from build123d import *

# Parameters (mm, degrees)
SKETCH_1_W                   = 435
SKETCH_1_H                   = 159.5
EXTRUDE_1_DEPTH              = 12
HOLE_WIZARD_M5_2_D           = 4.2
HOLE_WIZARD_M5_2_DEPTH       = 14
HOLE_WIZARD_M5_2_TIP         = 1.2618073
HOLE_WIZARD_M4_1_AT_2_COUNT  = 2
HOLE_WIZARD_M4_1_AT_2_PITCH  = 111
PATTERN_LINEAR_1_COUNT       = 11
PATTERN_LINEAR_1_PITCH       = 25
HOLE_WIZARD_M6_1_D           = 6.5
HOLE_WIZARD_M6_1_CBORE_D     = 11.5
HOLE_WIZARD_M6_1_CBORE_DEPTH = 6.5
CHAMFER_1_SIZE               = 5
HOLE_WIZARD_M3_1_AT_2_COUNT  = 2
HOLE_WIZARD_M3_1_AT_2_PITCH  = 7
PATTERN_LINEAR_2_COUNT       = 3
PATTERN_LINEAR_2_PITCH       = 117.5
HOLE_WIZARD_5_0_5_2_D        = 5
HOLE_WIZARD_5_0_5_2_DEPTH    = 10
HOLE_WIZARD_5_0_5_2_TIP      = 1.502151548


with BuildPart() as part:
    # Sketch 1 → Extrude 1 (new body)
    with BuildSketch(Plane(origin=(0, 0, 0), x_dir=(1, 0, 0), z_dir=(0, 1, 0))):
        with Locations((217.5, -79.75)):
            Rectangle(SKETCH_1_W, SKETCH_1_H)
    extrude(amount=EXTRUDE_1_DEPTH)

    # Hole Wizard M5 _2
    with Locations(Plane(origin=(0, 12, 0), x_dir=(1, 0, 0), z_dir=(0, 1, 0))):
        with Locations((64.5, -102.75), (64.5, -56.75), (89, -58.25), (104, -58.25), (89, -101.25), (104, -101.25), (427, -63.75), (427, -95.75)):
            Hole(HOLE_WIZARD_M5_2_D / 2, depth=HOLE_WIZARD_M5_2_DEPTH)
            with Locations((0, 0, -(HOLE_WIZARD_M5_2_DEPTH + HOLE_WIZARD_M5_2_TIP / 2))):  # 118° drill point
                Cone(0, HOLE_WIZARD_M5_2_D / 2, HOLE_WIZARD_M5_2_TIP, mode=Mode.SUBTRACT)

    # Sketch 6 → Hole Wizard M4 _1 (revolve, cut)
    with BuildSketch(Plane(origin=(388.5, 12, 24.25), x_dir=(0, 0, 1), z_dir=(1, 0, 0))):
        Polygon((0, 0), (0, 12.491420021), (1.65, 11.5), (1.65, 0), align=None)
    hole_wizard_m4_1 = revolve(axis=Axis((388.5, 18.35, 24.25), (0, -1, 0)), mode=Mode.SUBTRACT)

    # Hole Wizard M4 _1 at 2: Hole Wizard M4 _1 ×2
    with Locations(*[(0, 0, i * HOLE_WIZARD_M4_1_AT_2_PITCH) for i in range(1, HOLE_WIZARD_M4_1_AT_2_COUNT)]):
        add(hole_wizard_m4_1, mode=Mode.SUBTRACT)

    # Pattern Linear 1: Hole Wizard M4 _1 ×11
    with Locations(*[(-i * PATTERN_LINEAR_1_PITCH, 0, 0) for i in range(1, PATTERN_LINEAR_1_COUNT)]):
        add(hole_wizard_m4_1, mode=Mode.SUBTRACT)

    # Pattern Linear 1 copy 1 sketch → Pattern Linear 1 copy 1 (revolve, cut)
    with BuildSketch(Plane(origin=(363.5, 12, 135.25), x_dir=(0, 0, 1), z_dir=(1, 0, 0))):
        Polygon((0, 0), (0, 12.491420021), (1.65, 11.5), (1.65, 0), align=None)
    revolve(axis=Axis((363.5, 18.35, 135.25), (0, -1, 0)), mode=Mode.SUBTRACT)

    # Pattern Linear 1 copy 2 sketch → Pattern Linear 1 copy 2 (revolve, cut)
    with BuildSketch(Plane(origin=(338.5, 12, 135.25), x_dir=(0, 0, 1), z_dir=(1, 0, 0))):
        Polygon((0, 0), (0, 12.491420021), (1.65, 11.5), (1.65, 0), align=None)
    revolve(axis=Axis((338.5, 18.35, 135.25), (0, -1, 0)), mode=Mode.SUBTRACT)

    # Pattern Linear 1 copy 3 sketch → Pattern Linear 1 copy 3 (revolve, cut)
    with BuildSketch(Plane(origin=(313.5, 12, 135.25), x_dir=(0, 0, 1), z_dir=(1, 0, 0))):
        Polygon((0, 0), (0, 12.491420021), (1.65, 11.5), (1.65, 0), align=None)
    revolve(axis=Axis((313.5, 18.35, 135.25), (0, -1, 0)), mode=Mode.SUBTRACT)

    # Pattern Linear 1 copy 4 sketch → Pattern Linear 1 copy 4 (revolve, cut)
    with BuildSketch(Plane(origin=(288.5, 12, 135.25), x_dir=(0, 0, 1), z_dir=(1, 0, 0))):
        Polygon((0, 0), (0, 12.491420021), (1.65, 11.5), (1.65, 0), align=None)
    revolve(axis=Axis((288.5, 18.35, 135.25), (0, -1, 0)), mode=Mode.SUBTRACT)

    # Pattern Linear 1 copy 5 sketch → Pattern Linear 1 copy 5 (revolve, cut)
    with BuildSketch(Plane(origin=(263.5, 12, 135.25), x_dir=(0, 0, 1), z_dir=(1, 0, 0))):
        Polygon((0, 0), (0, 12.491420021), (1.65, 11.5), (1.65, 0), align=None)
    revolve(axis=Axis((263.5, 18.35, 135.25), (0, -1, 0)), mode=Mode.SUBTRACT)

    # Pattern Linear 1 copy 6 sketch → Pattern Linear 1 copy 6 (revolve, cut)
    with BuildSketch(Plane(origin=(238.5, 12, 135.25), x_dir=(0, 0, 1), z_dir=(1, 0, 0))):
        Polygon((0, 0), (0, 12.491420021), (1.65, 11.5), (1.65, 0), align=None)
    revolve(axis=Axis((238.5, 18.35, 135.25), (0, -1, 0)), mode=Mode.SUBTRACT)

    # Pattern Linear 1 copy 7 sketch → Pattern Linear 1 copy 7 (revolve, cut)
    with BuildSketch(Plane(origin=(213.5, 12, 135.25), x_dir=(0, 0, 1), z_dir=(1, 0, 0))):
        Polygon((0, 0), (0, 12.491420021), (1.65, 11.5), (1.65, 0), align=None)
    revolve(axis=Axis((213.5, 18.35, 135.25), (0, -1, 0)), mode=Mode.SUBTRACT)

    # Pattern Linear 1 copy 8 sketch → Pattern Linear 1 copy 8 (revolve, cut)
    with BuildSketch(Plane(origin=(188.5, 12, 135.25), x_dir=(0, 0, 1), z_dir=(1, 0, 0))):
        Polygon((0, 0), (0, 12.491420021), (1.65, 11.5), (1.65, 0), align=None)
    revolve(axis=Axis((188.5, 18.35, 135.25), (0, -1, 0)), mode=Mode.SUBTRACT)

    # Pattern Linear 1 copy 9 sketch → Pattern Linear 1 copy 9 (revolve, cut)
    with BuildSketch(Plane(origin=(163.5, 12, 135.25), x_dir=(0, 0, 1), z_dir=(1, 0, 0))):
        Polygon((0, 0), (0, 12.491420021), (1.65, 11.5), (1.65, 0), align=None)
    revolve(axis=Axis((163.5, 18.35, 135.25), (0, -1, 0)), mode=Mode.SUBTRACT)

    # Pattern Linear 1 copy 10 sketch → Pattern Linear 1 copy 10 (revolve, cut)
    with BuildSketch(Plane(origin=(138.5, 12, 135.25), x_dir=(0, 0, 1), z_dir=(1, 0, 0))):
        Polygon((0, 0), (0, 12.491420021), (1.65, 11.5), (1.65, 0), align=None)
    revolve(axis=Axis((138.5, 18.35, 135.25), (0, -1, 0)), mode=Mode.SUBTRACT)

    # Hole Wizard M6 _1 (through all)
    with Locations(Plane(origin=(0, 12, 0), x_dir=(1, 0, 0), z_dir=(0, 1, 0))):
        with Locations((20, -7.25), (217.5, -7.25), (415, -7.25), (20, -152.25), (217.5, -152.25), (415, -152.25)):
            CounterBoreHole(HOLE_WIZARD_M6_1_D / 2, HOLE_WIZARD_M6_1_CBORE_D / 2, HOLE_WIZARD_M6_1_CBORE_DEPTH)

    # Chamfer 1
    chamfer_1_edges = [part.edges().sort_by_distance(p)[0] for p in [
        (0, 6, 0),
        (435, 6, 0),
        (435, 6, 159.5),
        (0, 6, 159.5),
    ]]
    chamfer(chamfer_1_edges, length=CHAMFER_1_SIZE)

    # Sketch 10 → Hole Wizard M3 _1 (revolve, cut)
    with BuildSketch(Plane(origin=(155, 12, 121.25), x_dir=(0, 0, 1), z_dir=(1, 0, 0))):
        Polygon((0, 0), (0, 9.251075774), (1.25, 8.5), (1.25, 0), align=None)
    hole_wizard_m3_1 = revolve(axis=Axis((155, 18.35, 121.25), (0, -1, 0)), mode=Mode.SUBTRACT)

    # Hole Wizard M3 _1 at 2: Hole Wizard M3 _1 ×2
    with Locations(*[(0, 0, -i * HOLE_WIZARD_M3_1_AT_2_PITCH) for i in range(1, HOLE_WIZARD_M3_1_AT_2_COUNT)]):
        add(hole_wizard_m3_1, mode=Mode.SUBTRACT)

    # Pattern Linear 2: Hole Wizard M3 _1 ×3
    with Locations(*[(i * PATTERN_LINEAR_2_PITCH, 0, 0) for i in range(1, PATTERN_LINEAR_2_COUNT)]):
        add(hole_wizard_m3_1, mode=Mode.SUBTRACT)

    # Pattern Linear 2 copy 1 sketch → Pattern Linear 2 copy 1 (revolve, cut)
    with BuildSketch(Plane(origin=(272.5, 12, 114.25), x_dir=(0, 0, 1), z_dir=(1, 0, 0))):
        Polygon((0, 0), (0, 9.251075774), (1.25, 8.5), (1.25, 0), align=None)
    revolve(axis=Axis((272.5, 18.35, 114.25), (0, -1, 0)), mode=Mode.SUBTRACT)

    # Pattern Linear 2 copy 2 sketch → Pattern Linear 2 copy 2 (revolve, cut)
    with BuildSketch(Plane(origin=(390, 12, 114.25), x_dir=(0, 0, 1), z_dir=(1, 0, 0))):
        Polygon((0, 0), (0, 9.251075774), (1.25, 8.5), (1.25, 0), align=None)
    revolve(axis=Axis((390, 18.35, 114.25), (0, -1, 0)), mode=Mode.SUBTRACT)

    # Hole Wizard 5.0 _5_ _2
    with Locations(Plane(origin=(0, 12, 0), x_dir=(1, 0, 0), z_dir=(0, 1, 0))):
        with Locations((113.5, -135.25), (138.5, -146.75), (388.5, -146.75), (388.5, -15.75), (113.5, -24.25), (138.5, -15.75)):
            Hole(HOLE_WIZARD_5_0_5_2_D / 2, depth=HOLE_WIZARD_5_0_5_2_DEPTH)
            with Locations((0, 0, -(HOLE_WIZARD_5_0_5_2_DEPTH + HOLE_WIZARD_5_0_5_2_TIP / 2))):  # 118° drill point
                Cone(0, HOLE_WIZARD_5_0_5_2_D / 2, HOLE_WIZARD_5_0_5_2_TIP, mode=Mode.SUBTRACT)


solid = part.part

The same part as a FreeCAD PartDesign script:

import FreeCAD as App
import Part
import Sketcher
Q = App.Units.Quantity


def edges_at(feature, points):
    """Names of the edges that pass closest to the given points."""
    edges = feature.Shape.Edges
    near = lambda p: min(range(len(edges)), key=lambda i: edges[i].distToShape(Part.Vertex(*p))[0])
    return sorted({f"Edge{near(p) + 1}" for p in points})

doc = App.newDocument("Part")
params = doc.addObject("Spreadsheet::Sheet", "Params")
for row, (alias, value) in enumerate([
    ("sketch1_width", "435 mm"),
    ("sketch1_height", "159.5 mm"),
    ("pad1_length", "12 mm"),
    ("sketch2_diameter", "4.2 mm"),
    ("hole_diameter", "4.2 mm"),
    ("hole_depth", "14 mm"),
    ("sketch3_width", "11.5 mm"),
    ("sketch3_height", "1.65 mm"),
    ("groove_angle", "360 deg"),
    ("linearpattern_pitch", "111 mm"),
    ("linearpattern2_pitch", "25 mm"),
    ("sketch4_width", "11.5 mm"),
    ("sketch4_height", "1.65 mm"),
    ("groove2_angle", "360 deg"),
    ("sketch5_width", "11.5 mm"),
    ("sketch5_height", "1.65 mm"),
    ("groove3_angle", "360 deg"),
    ("sketch6_width", "11.5 mm"),
    ("sketch6_height", "1.65 mm"),
    ("groove4_angle", "360 deg"),
    ("sketch7_width", "11.5 mm"),
    ("sketch7_height", "1.65 mm"),
    ("groove5_angle", "360 deg"),
    ("sketch8_width", "11.5 mm"),
    ("sketch8_height", "1.65 mm"),
    ("groove6_angle", "360 deg"),
    ("sketch9_width", "11.5 mm"),
    ("sketch9_height", "1.65 mm"),
    ("groove7_angle", "360 deg"),
    ("sketch10_width", "11.5 mm"),
    ("sketch10_height", "1.65 mm"),
    ("groove8_angle", "360 deg"),
    ("sketch11_width", "11.5 mm"),
    ("sketch11_height", "1.65 mm"),
    ("groove9_angle", "360 deg"),
    ("sketch12_width", "11.5 mm"),
    ("sketch12_height", "1.65 mm"),
    ("groove10_angle", "360 deg"),
    ("sketch13_width", "11.5 mm"),
    ("sketch13_height", "1.65 mm"),
    ("groove11_angle", "360 deg"),
    ("sketch14_diameter", "6.5 mm"),
    ("hole2_diameter", "6.5 mm"),
    ("hole2_cbore_diameter", "11.5 mm"),
    ("hole2_cbore_depth", "6.5 mm"),
    ("chamfer_size", "5 mm"),
    ("sketch15_width", "8.5 mm"),
    ("sketch15_height", "1.25 mm"),
    ("groove12_angle", "360 deg"),
    ("linearpattern3_pitch", "7 mm"),
    ("linearpattern4_pitch", "117.5 mm"),
    ("sketch16_width", "8.5 mm"),
    ("sketch16_height", "1.25 mm"),
    ("groove13_angle", "360 deg"),
    ("sketch17_width", "8.5 mm"),
    ("sketch17_height", "1.25 mm"),
    ("groove14_angle", "360 deg"),
    ("sketch18_diameter", "5 mm"),
    ("hole3_diameter", "5 mm"),
    ("hole3_depth", "10 mm"),
], start=1):
    params.set(f"A{row}", alias)
    params.set(f"B{row}", "=" + value)
    params.setAlias(f"B{row}", alias)

body = doc.addObject("PartDesign::Body", "Body")

sketch1 = body.newObject("Sketcher::SketchObject", "Sketch")
sketch1.AttachmentSupport = (doc.getObject("XZ_Plane"), [""])
sketch1.MapMode = "FlatFace"
sketch1.addGeometry([
    Part.LineSegment(App.Vector(0, 0, 0), App.Vector(0, 160, 0)),
    Part.LineSegment(App.Vector(0, 160, 0), App.Vector(435, 160, 0)),
    Part.LineSegment(App.Vector(435, 160, 0), App.Vector(435, 0, 0)),
    Part.LineSegment(App.Vector(435, 0, 0), App.Vector(0, 0, 0)),
], False)
sketch1.addConstraint([
    Sketcher.Constraint("Coincident", 0, 2, 1, 1),
    Sketcher.Constraint("Coincident", 1, 2, 2, 1),
    Sketcher.Constraint("Coincident", 2, 2, 3, 1),
    Sketcher.Constraint("Coincident", 3, 2, 0, 1),
    Sketcher.Constraint("Vertical", 0),
    Sketcher.Constraint("Horizontal", 1),
    Sketcher.Constraint("Vertical", 2),
    Sketcher.Constraint("Horizontal", 3),
    Sketcher.Constraint("Coincident", 3, 2, -1, 1),
    Sketcher.Constraint("DistanceX", 1, 1, 1, 2, 435.0),
    Sketcher.Constraint("DistanceY", 0, 1, 0, 2, 159.5),
])
sketch1.setExpression("Constraints[9]", "Params.sketch1_width")
sketch1.setExpression("Constraints[10]", "Params.sketch1_height")
pad1 = body.newObject("PartDesign::Pad", "Pad")
pad1.Profile = sketch1
pad1.setExpression("Length", "Params.pad1_length")
pad1.Reversed = True

sketch2 = body.newObject("Sketcher::SketchObject", "Sketch001")
sketch2.AttachmentSupport = (doc.getObject("XZ_Plane"), [""])
sketch2.MapMode = "FlatFace"
sketch2.AttachmentOffset = App.Placement(App.Vector(0, 0, -12), App.Rotation())
sketch2.addGeometry([
    Part.Circle(App.Vector(64.5, 102.8, 0), App.Vector(0, 0, 1), 2.1),
    Part.Circle(App.Vector(64.5, 56.8, 0), App.Vector(0, 0, 1), 2.1),
    Part.Circle(App.Vector(89, 58.2, 0), App.Vector(0, 0, 1), 2.1),
    Part.Circle(App.Vector(104, 58.2, 0), App.Vector(0, 0, 1), 2.1),
    Part.Circle(App.Vector(89, 101.2, 0), App.Vector(0, 0, 1), 2.1),
    Part.Circle(App.Vector(104, 101.2, 0), App.Vector(0, 0, 1), 2.1),
    Part.Circle(App.Vector(427, 63.8, 0), App.Vector(0, 0, 1), 2.1),
    Part.Circle(App.Vector(427, 95.8, 0), App.Vector(0, 0, 1), 2.1),
], False)
sketch2.addConstraint([
    Sketcher.Constraint("Equal", 0, 1),
    Sketcher.Constraint("Equal", 1, 2),
    Sketcher.Constraint("Equal", 2, 3),
    Sketcher.Constraint("Equal", 3, 4),
    Sketcher.Constraint("Equal", 4, 5),
    Sketcher.Constraint("Equal", 5, 6),
    Sketcher.Constraint("Equal", 6, 7),
    Sketcher.Constraint("Horizontal", 2, 3, 3, 3),
    Sketcher.Constraint("Horizontal", 4, 3, 5, 3),
    Sketcher.Constraint("Vertical", 0, 3, 1, 3),
    Sketcher.Constraint("Vertical", 2, 3, 4, 3),
    Sketcher.Constraint("Vertical", 3, 3, 5, 3),
    Sketcher.Constraint("Vertical", 6, 3, 7, 3),
    Sketcher.Constraint("Diameter", 0, 4.2),
    Sketcher.Constraint("DistanceX", -1, 1, 2, 3, 89.0),
    Sketcher.Constraint("DistanceX", -1, 1, 3, 3, 104.0),
    Sketcher.Constraint("DistanceX", -1, 1, 6, 3, 427.0),
    Sketcher.Constraint("DistanceY", 1, 3, 0, 3, 46.0),
    Sketcher.Constraint("DistanceY", 2, 3, 4, 3, 43.0),
    Sketcher.Constraint("DistanceY", 1, 3, 6, 3, 7.0),
    Sketcher.Constraint("DistanceY", 6, 3, 7, 3, 32.0),
    Sketcher.Constraint("DistanceX", -1, 1, 0, 3, 64.5),
    Sketcher.Constraint("DistanceY", 1, 3, 2, 3, 1.5),
    Sketcher.Constraint("DistanceY", -1, 1, 0, 3, 102.75),
])
sketch2.setExpression("Constraints[13]", "Params.sketch2_diameter")
doc.recompute()
hole = body.newObject("PartDesign::Hole", "Hole")
hole.Profile = sketch2
hole.ThreadType = "None"
hole.setExpression("Diameter", "Params.hole_diameter")
hole.DepthType = "Dimension"
hole.setExpression("Depth", "Params.hole_depth")
hole.DrillPoint = "Angled"
hole.DrillPointAngle = 118
hole.Reversed = True

sketch3 = body.newObject("Sketcher::SketchObject", "Sketch002")
sketch3.AttachmentSupport = (doc.getObject("YZ_Plane"), [""])
sketch3.MapMode = "FlatFace"
sketch3.AttachmentOffset = App.Placement(App.Vector(0, 0, 388.5), App.Rotation())
sketch3.addGeometry([
    Part.LineSegment(App.Vector(-0.5, 24.2, 0), App.Vector(12, 24.2, 0)),
    Part.LineSegment(App.Vector(12, 24.2, 0), App.Vector(12, 25.9, 0)),
    Part.LineSegment(App.Vector(12, 25.9, 0), App.Vector(0.5, 25.9, 0)),
    Part.LineSegment(App.Vector(0.5, 25.9, 0), App.Vector(-0.5, 24.2, 0)),
], False)
sketch3.addGeometry(Part.LineSegment(App.Vector(12, 24.2, 0), App.Vector(-0.5, 24.2, 0)), True)
sketch3.addConstraint([
    Sketcher.Constraint("Coincident", 0, 2, 1, 1),
    Sketcher.Constraint("Coincident", 1, 2, 2, 1),
    Sketcher.Constraint("Coincident", 2, 2, 3, 1),
    Sketcher.Constraint("Coincident", 3, 2, 0, 1),
    Sketcher.Constraint("Horizontal", 0),
    Sketcher.Constraint("Vertical", 1),
    Sketcher.Constraint("Horizontal", 2),
    Sketcher.Constraint("Horizontal", 4),
    Sketcher.Constraint("Coincident", 4, 1, 0, 2),
    Sketcher.Constraint("Equal", 0, 4),
    Sketcher.Constraint("Angle", 3, Q("-121 deg")),
    Sketcher.Constraint("DistanceX", 2, 2, 2, 1, 11.5),
    Sketcher.Constraint("DistanceX", -1, 1, 0, 2, 12.0),
    Sketcher.Constraint("DistanceY", 1, 1, 1, 2, 1.65),
    Sketcher.Constraint("DistanceY", -1, 1, 1, 2, 25.9),
])
sketch3.setExpression("Constraints[11]", "Params.sketch3_width")
sketch3.setExpression("Constraints[13]", "Params.sketch3_height")
groove = body.newObject("PartDesign::Groove", "Groove")
groove.Profile = sketch3
groove.ReferenceAxis = (sketch3, ["Axis0"])
groove.setExpression("Angle", "Params.groove_angle")
doc.recompute()

linearpattern = body.newObject("PartDesign::LinearPattern", "LinearPattern")
linearpattern.Originals = [groove]
linearpattern.Direction = (doc.getObject("Z_Axis"), [""])
linearpattern.Mode = "offset"
linearpattern.setExpression("Offset", "Params.linearpattern_pitch")
linearpattern.Occurrences = 2
body.Tip = linearpattern
doc.recompute()

linearpattern2 = body.newObject("PartDesign::LinearPattern", "LinearPattern001")
linearpattern2.Originals = [groove]
linearpattern2.Direction = (doc.getObject("X_Axis"), [""])
linearpattern2.Mode = "offset"
linearpattern2.setExpression("Offset", "Params.linearpattern2_pitch")
linearpattern2.Occurrences = 11
linearpattern2.Reversed = True
body.Tip = linearpattern2

sketch4 = body.newObject("Sketcher::SketchObject", "Sketch003")
sketch4.AttachmentSupport = (doc.getObject("YZ_Plane"), [""])
sketch4.MapMode = "FlatFace"
sketch4.AttachmentOffset = App.Placement(App.Vector(0, 0, 363.5), App.Rotation())
sketch4.addGeometry([
    Part.LineSegment(App.Vector(-0.5, 135.2, 0), App.Vector(12, 135.2, 0)),
    Part.LineSegment(App.Vector(12, 135.2, 0), App.Vector(12, 136.9, 0)),
    Part.LineSegment(App.Vector(12, 136.9, 0), App.Vector(0.5, 136.9, 0)),
    Part.LineSegment(App.Vector(0.5, 136.9, 0), App.Vector(-0.5, 135.2, 0)),
], False)
sketch4.addGeometry(Part.LineSegment(App.Vector(12, 135.2, 0), App.Vector(-0.5, 135.2, 0)), True)
sketch4.addConstraint([
    Sketcher.Constraint("Coincident", 0, 2, 1, 1),
    Sketcher.Constraint("Coincident", 1, 2, 2, 1),
    Sketcher.Constraint("Coincident", 2, 2, 3, 1),
    Sketcher.Constraint("Coincident", 3, 2, 0, 1),
    Sketcher.Constraint("Horizontal", 0),
    Sketcher.Constraint("Vertical", 1),
    Sketcher.Constraint("Horizontal", 2),
    Sketcher.Constraint("Horizontal", 4),
    Sketcher.Constraint("Coincident", 4, 1, 0, 2),
    Sketcher.Constraint("Equal", 0, 4),
    Sketcher.Constraint("Angle", 3, Q("-121 deg")),
    Sketcher.Constraint("DistanceX", 2, 2, 2, 1, 11.5),
    Sketcher.Constraint("DistanceX", -1, 1, 0, 2, 12.0),
    Sketcher.Constraint("DistanceY", 1, 1, 1, 2, 1.65),
    Sketcher.Constraint("DistanceY", -1, 1, 1, 2, 136.9),
])
sketch4.setExpression("Constraints[11]", "Params.sketch4_width")
sketch4.setExpression("Constraints[13]", "Params.sketch4_height")
groove2 = body.newObject("PartDesign::Groove", "Groove001")
groove2.Profile = sketch4
groove2.ReferenceAxis = (sketch4, ["Axis0"])
groove2.setExpression("Angle", "Params.groove2_angle")

sketch5 = body.newObject("Sketcher::SketchObject", "Sketch004")
sketch5.AttachmentSupport = (doc.getObject("YZ_Plane"), [""])
sketch5.MapMode = "FlatFace"
sketch5.AttachmentOffset = App.Placement(App.Vector(0, 0, 338.5), App.Rotation())
sketch5.addGeometry([
    Part.LineSegment(App.Vector(-0.5, 135.2, 0), App.Vector(12, 135.2, 0)),
    Part.LineSegment(App.Vector(12, 135.2, 0), App.Vector(12, 136.9, 0)),
    Part.LineSegment(App.Vector(12, 136.9, 0), App.Vector(0.5, 136.9, 0)),
    Part.LineSegment(App.Vector(0.5, 136.9, 0), App.Vector(-0.5, 135.2, 0)),
], False)
sketch5.addGeometry(Part.LineSegment(App.Vector(12, 135.2, 0), App.Vector(-0.5, 135.2, 0)), True)
sketch5.addConstraint([
    Sketcher.Constraint("Coincident", 0, 2, 1, 1),
    Sketcher.Constraint("Coincident", 1, 2, 2, 1),
    Sketcher.Constraint("Coincident", 2, 2, 3, 1),
    Sketcher.Constraint("Coincident", 3, 2, 0, 1),
    Sketcher.Constraint("Horizontal", 0),
    Sketcher.Constraint("Vertical", 1),
    Sketcher.Constraint("Horizontal", 2),
    Sketcher.Constraint("Horizontal", 4),
    Sketcher.Constraint("Coincident", 4, 1, 0, 2),
    Sketcher.Constraint("Equal", 0, 4),
    Sketcher.Constraint("Angle", 3, Q("-121 deg")),
    Sketcher.Constraint("DistanceX", 2, 2, 2, 1, 11.5),
    Sketcher.Constraint("DistanceX", -1, 1, 0, 2, 12.0),
    Sketcher.Constraint("DistanceY", 1, 1, 1, 2, 1.65),
    Sketcher.Constraint("DistanceY", -1, 1, 1, 2, 136.9),
])
sketch5.setExpression("Constraints[11]", "Params.sketch5_width")
sketch5.setExpression("Constraints[13]", "Params.sketch5_height")
groove3 = body.newObject("PartDesign::Groove", "Groove002")
groove3.Profile = sketch5
groove3.ReferenceAxis = (sketch5, ["Axis0"])
groove3.setExpression("Angle", "Params.groove3_angle")

sketch6 = body.newObject("Sketcher::SketchObject", "Sketch005")
sketch6.AttachmentSupport = (doc.getObject("YZ_Plane"), [""])
sketch6.MapMode = "FlatFace"
sketch6.AttachmentOffset = App.Placement(App.Vector(0, 0, 313.5), App.Rotation())
sketch6.addGeometry([
    Part.LineSegment(App.Vector(-0.5, 135.2, 0), App.Vector(12, 135.2, 0)),
    Part.LineSegment(App.Vector(12, 135.2, 0), App.Vector(12, 136.9, 0)),
    Part.LineSegment(App.Vector(12, 136.9, 0), App.Vector(0.5, 136.9, 0)),
    Part.LineSegment(App.Vector(0.5, 136.9, 0), App.Vector(-0.5, 135.2, 0)),
], False)
sketch6.addGeometry(Part.LineSegment(App.Vector(12, 135.2, 0), App.Vector(-0.5, 135.2, 0)), True)
sketch6.addConstraint([
    Sketcher.Constraint("Coincident", 0, 2, 1, 1),
    Sketcher.Constraint("Coincident", 1, 2, 2, 1),
    Sketcher.Constraint("Coincident", 2, 2, 3, 1),
    Sketcher.Constraint("Coincident", 3, 2, 0, 1),
    Sketcher.Constraint("Horizontal", 0),
    Sketcher.Constraint("Vertical", 1),
    Sketcher.Constraint("Horizontal", 2),
    Sketcher.Constraint("Horizontal", 4),
    Sketcher.Constraint("Coincident", 4, 1, 0, 2),
    Sketcher.Constraint("Equal", 0, 4),
    Sketcher.Constraint("Angle", 3, Q("-121 deg")),
    Sketcher.Constraint("DistanceX", 2, 2, 2, 1, 11.5),
    Sketcher.Constraint("DistanceX", -1, 1, 0, 2, 12.0),
    Sketcher.Constraint("DistanceY", 1, 1, 1, 2, 1.65),
    Sketcher.Constraint("DistanceY", -1, 1, 1, 2, 136.9),
])
sketch6.setExpression("Constraints[11]", "Params.sketch6_width")
sketch6.setExpression("Constraints[13]", "Params.sketch6_height")
groove4 = body.newObject("PartDesign::Groove", "Groove003")
groove4.Profile = sketch6
groove4.ReferenceAxis = (sketch6, ["Axis0"])
groove4.setExpression("Angle", "Params.groove4_angle")

sketch7 = body.newObject("Sketcher::SketchObject", "Sketch006")
sketch7.AttachmentSupport = (doc.getObject("YZ_Plane"), [""])
sketch7.MapMode = "FlatFace"
sketch7.AttachmentOffset = App.Placement(App.Vector(0, 0, 288.5), App.Rotation())
sketch7.addGeometry([
    Part.LineSegment(App.Vector(-0.5, 135.2, 0), App.Vector(12, 135.2, 0)),
    Part.LineSegment(App.Vector(12, 135.2, 0), App.Vector(12, 136.9, 0)),
    Part.LineSegment(App.Vector(12, 136.9, 0), App.Vector(0.5, 136.9, 0)),
    Part.LineSegment(App.Vector(0.5, 136.9, 0), App.Vector(-0.5, 135.2, 0)),
], False)
sketch7.addGeometry(Part.LineSegment(App.Vector(12, 135.2, 0), App.Vector(-0.5, 135.2, 0)), True)
sketch7.addConstraint([
    Sketcher.Constraint("Coincident", 0, 2, 1, 1),
    Sketcher.Constraint("Coincident", 1, 2, 2, 1),
    Sketcher.Constraint("Coincident", 2, 2, 3, 1),
    Sketcher.Constraint("Coincident", 3, 2, 0, 1),
    Sketcher.Constraint("Horizontal", 0),
    Sketcher.Constraint("Vertical", 1),
    Sketcher.Constraint("Horizontal", 2),
    Sketcher.Constraint("Horizontal", 4),
    Sketcher.Constraint("Coincident", 4, 1, 0, 2),
    Sketcher.Constraint("Equal", 0, 4),
    Sketcher.Constraint("Angle", 3, Q("-121 deg")),
    Sketcher.Constraint("DistanceX", 2, 2, 2, 1, 11.5),
    Sketcher.Constraint("DistanceX", -1, 1, 0, 2, 12.0),
    Sketcher.Constraint("DistanceY", 1, 1, 1, 2, 1.65),
    Sketcher.Constraint("DistanceY", -1, 1, 1, 2, 136.9),
])
sketch7.setExpression("Constraints[11]", "Params.sketch7_width")
sketch7.setExpression("Constraints[13]", "Params.sketch7_height")
groove5 = body.newObject("PartDesign::Groove", "Groove004")
groove5.Profile = sketch7
groove5.ReferenceAxis = (sketch7, ["Axis0"])
groove5.setExpression("Angle", "Params.groove5_angle")

sketch8 = body.newObject("Sketcher::SketchObject", "Sketch007")
sketch8.AttachmentSupport = (doc.getObject("YZ_Plane"), [""])
sketch8.MapMode = "FlatFace"
sketch8.AttachmentOffset = App.Placement(App.Vector(0, 0, 263.5), App.Rotation())
sketch8.addGeometry([
    Part.LineSegment(App.Vector(-0.5, 135.2, 0), App.Vector(12, 135.2, 0)),
    Part.LineSegment(App.Vector(12, 135.2, 0), App.Vector(12, 136.9, 0)),
    Part.LineSegment(App.Vector(12, 136.9, 0), App.Vector(0.5, 136.9, 0)),
    Part.LineSegment(App.Vector(0.5, 136.9, 0), App.Vector(-0.5, 135.2, 0)),
], False)
sketch8.addGeometry(Part.LineSegment(App.Vector(12, 135.2, 0), App.Vector(-0.5, 135.2, 0)), True)
sketch8.addConstraint([
    Sketcher.Constraint("Coincident", 0, 2, 1, 1),
    Sketcher.Constraint("Coincident", 1, 2, 2, 1),
    Sketcher.Constraint("Coincident", 2, 2, 3, 1),
    Sketcher.Constraint("Coincident", 3, 2, 0, 1),
    Sketcher.Constraint("Horizontal", 0),
    Sketcher.Constraint("Vertical", 1),
    Sketcher.Constraint("Horizontal", 2),
    Sketcher.Constraint("Horizontal", 4),
    Sketcher.Constraint("Coincident", 4, 1, 0, 2),
    Sketcher.Constraint("Equal", 0, 4),
    Sketcher.Constraint("Angle", 3, Q("-121 deg")),
    Sketcher.Constraint("DistanceX", 2, 2, 2, 1, 11.5),
    Sketcher.Constraint("DistanceX", -1, 1, 0, 2, 12.0),
    Sketcher.Constraint("DistanceY", 1, 1, 1, 2, 1.65),
    Sketcher.Constraint("DistanceY", -1, 1, 1, 2, 136.9),
])
sketch8.setExpression("Constraints[11]", "Params.sketch8_width")
sketch8.setExpression("Constraints[13]", "Params.sketch8_height")
groove6 = body.newObject("PartDesign::Groove", "Groove005")
groove6.Profile = sketch8
groove6.ReferenceAxis = (sketch8, ["Axis0"])
groove6.setExpression("Angle", "Params.groove6_angle")

sketch9 = body.newObject("Sketcher::SketchObject", "Sketch008")
sketch9.AttachmentSupport = (doc.getObject("YZ_Plane"), [""])
sketch9.MapMode = "FlatFace"
sketch9.AttachmentOffset = App.Placement(App.Vector(0, 0, 238.5), App.Rotation())
sketch9.addGeometry([
    Part.LineSegment(App.Vector(-0.5, 135.2, 0), App.Vector(12, 135.2, 0)),
    Part.LineSegment(App.Vector(12, 135.2, 0), App.Vector(12, 136.9, 0)),
    Part.LineSegment(App.Vector(12, 136.9, 0), App.Vector(0.5, 136.9, 0)),
    Part.LineSegment(App.Vector(0.5, 136.9, 0), App.Vector(-0.5, 135.2, 0)),
], False)
sketch9.addGeometry(Part.LineSegment(App.Vector(12, 135.2, 0), App.Vector(-0.5, 135.2, 0)), True)
sketch9.addConstraint([
    Sketcher.Constraint("Coincident", 0, 2, 1, 1),
    Sketcher.Constraint("Coincident", 1, 2, 2, 1),
    Sketcher.Constraint("Coincident", 2, 2, 3, 1),
    Sketcher.Constraint("Coincident", 3, 2, 0, 1),
    Sketcher.Constraint("Horizontal", 0),
    Sketcher.Constraint("Vertical", 1),
    Sketcher.Constraint("Horizontal", 2),
    Sketcher.Constraint("Horizontal", 4),
    Sketcher.Constraint("Coincident", 4, 1, 0, 2),
    Sketcher.Constraint("Equal", 0, 4),
    Sketcher.Constraint("Angle", 3, Q("-121 deg")),
    Sketcher.Constraint("DistanceX", 2, 2, 2, 1, 11.5),
    Sketcher.Constraint("DistanceX", -1, 1, 0, 2, 12.0),
    Sketcher.Constraint("DistanceY", 1, 1, 1, 2, 1.65),
    Sketcher.Constraint("DistanceY", -1, 1, 1, 2, 136.9),
])
sketch9.setExpression("Constraints[11]", "Params.sketch9_width")
sketch9.setExpression("Constraints[13]", "Params.sketch9_height")
groove7 = body.newObject("PartDesign::Groove", "Groove006")
groove7.Profile = sketch9
groove7.ReferenceAxis = (sketch9, ["Axis0"])
groove7.setExpression("Angle", "Params.groove7_angle")

sketch10 = body.newObject("Sketcher::SketchObject", "Sketch009")
sketch10.AttachmentSupport = (doc.getObject("YZ_Plane"), [""])
sketch10.MapMode = "FlatFace"
sketch10.AttachmentOffset = App.Placement(App.Vector(0, 0, 213.5), App.Rotation())
sketch10.addGeometry([
    Part.LineSegment(App.Vector(-0.5, 135.2, 0), App.Vector(12, 135.2, 0)),
    Part.LineSegment(App.Vector(12, 135.2, 0), App.Vector(12, 136.9, 0)),
    Part.LineSegment(App.Vector(12, 136.9, 0), App.Vector(0.5, 136.9, 0)),
    Part.LineSegment(App.Vector(0.5, 136.9, 0), App.Vector(-0.5, 135.2, 0)),
], False)
sketch10.addGeometry(Part.LineSegment(App.Vector(12, 135.2, 0), App.Vector(-0.5, 135.2, 0)), True)
sketch10.addConstraint([
    Sketcher.Constraint("Coincident", 0, 2, 1, 1),
    Sketcher.Constraint("Coincident", 1, 2, 2, 1),
    Sketcher.Constraint("Coincident", 2, 2, 3, 1),
    Sketcher.Constraint("Coincident", 3, 2, 0, 1),
    Sketcher.Constraint("Horizontal", 0),
    Sketcher.Constraint("Vertical", 1),
    Sketcher.Constraint("Horizontal", 2),
    Sketcher.Constraint("Horizontal", 4),
    Sketcher.Constraint("Coincident", 4, 1, 0, 2),
    Sketcher.Constraint("Equal", 0, 4),
    Sketcher.Constraint("Angle", 3, Q("-121 deg")),
    Sketcher.Constraint("DistanceX", 2, 2, 2, 1, 11.5),
    Sketcher.Constraint("DistanceX", -1, 1, 0, 2, 12.0),
    Sketcher.Constraint("DistanceY", 1, 1, 1, 2, 1.65),
    Sketcher.Constraint("DistanceY", -1, 1, 1, 2, 136.9),
])
sketch10.setExpression("Constraints[11]", "Params.sketch10_width")
sketch10.setExpression("Constraints[13]", "Params.sketch10_height")
groove8 = body.newObject("PartDesign::Groove", "Groove007")
groove8.Profile = sketch10
groove8.ReferenceAxis = (sketch10, ["Axis0"])
groove8.setExpression("Angle", "Params.groove8_angle")

sketch11 = body.newObject("Sketcher::SketchObject", "Sketch010")
sketch11.AttachmentSupport = (doc.getObject("YZ_Plane"), [""])
sketch11.MapMode = "FlatFace"
sketch11.AttachmentOffset = App.Placement(App.Vector(0, 0, 188.5), App.Rotation())
sketch11.addGeometry([
    Part.LineSegment(App.Vector(-0.5, 135.2, 0), App.Vector(12, 135.2, 0)),
    Part.LineSegment(App.Vector(12, 135.2, 0), App.Vector(12, 136.9, 0)),
    Part.LineSegment(App.Vector(12, 136.9, 0), App.Vector(0.5, 136.9, 0)),
    Part.LineSegment(App.Vector(0.5, 136.9, 0), App.Vector(-0.5, 135.2, 0)),
], False)
sketch11.addGeometry(Part.LineSegment(App.Vector(12, 135.2, 0), App.Vector(-0.5, 135.2, 0)), True)
sketch11.addConstraint([
    Sketcher.Constraint("Coincident", 0, 2, 1, 1),
    Sketcher.Constraint("Coincident", 1, 2, 2, 1),
    Sketcher.Constraint("Coincident", 2, 2, 3, 1),
    Sketcher.Constraint("Coincident", 3, 2, 0, 1),
    Sketcher.Constraint("Horizontal", 0),
    Sketcher.Constraint("Vertical", 1),
    Sketcher.Constraint("Horizontal", 2),
    Sketcher.Constraint("Horizontal", 4),
    Sketcher.Constraint("Coincident", 4, 1, 0, 2),
    Sketcher.Constraint("Equal", 0, 4),
    Sketcher.Constraint("Angle", 3, Q("-121 deg")),
    Sketcher.Constraint("DistanceX", 2, 2, 2, 1, 11.5),
    Sketcher.Constraint("DistanceX", -1, 1, 0, 2, 12.0),
    Sketcher.Constraint("DistanceY", 1, 1, 1, 2, 1.65),
    Sketcher.Constraint("DistanceY", -1, 1, 1, 2, 136.9),
])
sketch11.setExpression("Constraints[11]", "Params.sketch11_width")
sketch11.setExpression("Constraints[13]", "Params.sketch11_height")
groove9 = body.newObject("PartDesign::Groove", "Groove008")
groove9.Profile = sketch11
groove9.ReferenceAxis = (sketch11, ["Axis0"])
groove9.setExpression("Angle", "Params.groove9_angle")

sketch12 = body.newObject("Sketcher::SketchObject", "Sketch011")
sketch12.AttachmentSupport = (doc.getObject("YZ_Plane"), [""])
sketch12.MapMode = "FlatFace"
sketch12.AttachmentOffset = App.Placement(App.Vector(0, 0, 163.5), App.Rotation())
sketch12.addGeometry([
    Part.LineSegment(App.Vector(-0.5, 135.2, 0), App.Vector(12, 135.2, 0)),
    Part.LineSegment(App.Vector(12, 135.2, 0), App.Vector(12, 136.9, 0)),
    Part.LineSegment(App.Vector(12, 136.9, 0), App.Vector(0.5, 136.9, 0)),
    Part.LineSegment(App.Vector(0.5, 136.9, 0), App.Vector(-0.5, 135.2, 0)),
], False)
sketch12.addGeometry(Part.LineSegment(App.Vector(12, 135.2, 0), App.Vector(-0.5, 135.2, 0)), True)
sketch12.addConstraint([
    Sketcher.Constraint("Coincident", 0, 2, 1, 1),
    Sketcher.Constraint("Coincident", 1, 2, 2, 1),
    Sketcher.Constraint("Coincident", 2, 2, 3, 1),
    Sketcher.Constraint("Coincident", 3, 2, 0, 1),
    Sketcher.Constraint("Horizontal", 0),
    Sketcher.Constraint("Vertical", 1),
    Sketcher.Constraint("Horizontal", 2),
    Sketcher.Constraint("Horizontal", 4),
    Sketcher.Constraint("Coincident", 4, 1, 0, 2),
    Sketcher.Constraint("Equal", 0, 4),
    Sketcher.Constraint("Angle", 3, Q("-121 deg")),
    Sketcher.Constraint("DistanceX", 2, 2, 2, 1, 11.5),
    Sketcher.Constraint("DistanceX", -1, 1, 0, 2, 12.0),
    Sketcher.Constraint("DistanceY", 1, 1, 1, 2, 1.65),
    Sketcher.Constraint("DistanceY", -1, 1, 1, 2, 136.9),
])
sketch12.setExpression("Constraints[11]", "Params.sketch12_width")
sketch12.setExpression("Constraints[13]", "Params.sketch12_height")
groove10 = body.newObject("PartDesign::Groove", "Groove009")
groove10.Profile = sketch12
groove10.ReferenceAxis = (sketch12, ["Axis0"])
groove10.setExpression("Angle", "Params.groove10_angle")

sketch13 = body.newObject("Sketcher::SketchObject", "Sketch012")
sketch13.AttachmentSupport = (doc.getObject("YZ_Plane"), [""])
sketch13.MapMode = "FlatFace"
sketch13.AttachmentOffset = App.Placement(App.Vector(0, 0, 138.5), App.Rotation())
sketch13.addGeometry([
    Part.LineSegment(App.Vector(-0.5, 135.2, 0), App.Vector(12, 135.2, 0)),
    Part.LineSegment(App.Vector(12, 135.2, 0), App.Vector(12, 136.9, 0)),
    Part.LineSegment(App.Vector(12, 136.9, 0), App.Vector(0.5, 136.9, 0)),
    Part.LineSegment(App.Vector(0.5, 136.9, 0), App.Vector(-0.5, 135.2, 0)),
], False)
sketch13.addGeometry(Part.LineSegment(App.Vector(12, 135.2, 0), App.Vector(-0.5, 135.2, 0)), True)
sketch13.addConstraint([
    Sketcher.Constraint("Coincident", 0, 2, 1, 1),
    Sketcher.Constraint("Coincident", 1, 2, 2, 1),
    Sketcher.Constraint("Coincident", 2, 2, 3, 1),
    Sketcher.Constraint("Coincident", 3, 2, 0, 1),
    Sketcher.Constraint("Horizontal", 0),
    Sketcher.Constraint("Vertical", 1),
    Sketcher.Constraint("Horizontal", 2),
    Sketcher.Constraint("Horizontal", 4),
    Sketcher.Constraint("Coincident", 4, 1, 0, 2),
    Sketcher.Constraint("Equal", 0, 4),
    Sketcher.Constraint("Angle", 3, Q("-121 deg")),
    Sketcher.Constraint("DistanceX", 2, 2, 2, 1, 11.5),
    Sketcher.Constraint("DistanceX", -1, 1, 0, 2, 12.0),
    Sketcher.Constraint("DistanceY", 1, 1, 1, 2, 1.65),
    Sketcher.Constraint("DistanceY", -1, 1, 1, 2, 136.9),
])
sketch13.setExpression("Constraints[11]", "Params.sketch13_width")
sketch13.setExpression("Constraints[13]", "Params.sketch13_height")
groove11 = body.newObject("PartDesign::Groove", "Groove010")
groove11.Profile = sketch13
groove11.ReferenceAxis = (sketch13, ["Axis0"])
groove11.setExpression("Angle", "Params.groove11_angle")

sketch14 = body.newObject("Sketcher::SketchObject", "Sketch013")
sketch14.AttachmentSupport = (doc.getObject("XZ_Plane"), [""])
sketch14.MapMode = "FlatFace"
sketch14.AttachmentOffset = App.Placement(App.Vector(0, 0, -12), App.Rotation())
sketch14.addGeometry([
    Part.Circle(App.Vector(20, 7.2, 0), App.Vector(0, 0, 1), 3.2),
    Part.Circle(App.Vector(217.5, 7.2, 0), App.Vector(0, 0, 1), 3.2),
    Part.Circle(App.Vector(415, 7.2, 0), App.Vector(0, 0, 1), 3.2),
    Part.Circle(App.Vector(20, 152.2, 0), App.Vector(0, 0, 1), 3.2),
    Part.Circle(App.Vector(217.5, 152.2, 0), App.Vector(0, 0, 1), 3.2),
    Part.Circle(App.Vector(415, 152.2, 0), App.Vector(0, 0, 1), 3.2),
], False)
sketch14.addConstraint([
    Sketcher.Constraint("Equal", 0, 1),
    Sketcher.Constraint("Equal", 1, 2),
    Sketcher.Constraint("Equal", 2, 3),
    Sketcher.Constraint("Equal", 3, 4),
    Sketcher.Constraint("Equal", 4, 5),
    Sketcher.Constraint("Horizontal", 0, 3, 1, 3),
    Sketcher.Constraint("Horizontal", 1, 3, 2, 3),
    Sketcher.Constraint("Horizontal", 3, 3, 4, 3),
    Sketcher.Constraint("Horizontal", 4, 3, 5, 3),
    Sketcher.Constraint("Vertical", 0, 3, 3, 3),
    Sketcher.Constraint("Vertical", 1, 3, 4, 3),
    Sketcher.Constraint("Vertical", 2, 3, 5, 3),
    Sketcher.Constraint("Diameter", 0, 6.5),
    Sketcher.Constraint("DistanceX", -1, 1, 0, 3, 20.0),
    Sketcher.Constraint("DistanceX", -1, 1, 2, 3, 415.0),
    Sketcher.Constraint("DistanceY", 0, 3, 3, 3, 145.0),
    Sketcher.Constraint("DistanceX", -1, 1, 1, 3, 217.5),
    Sketcher.Constraint("DistanceY", -1, 1, 0, 3, 7.25),
])
sketch14.setExpression("Constraints[12]", "Params.sketch14_diameter")
doc.recompute()
hole2 = body.newObject("PartDesign::Hole", "Hole001")
hole2.Profile = sketch14
hole2.ThreadType = "None"
hole2.setExpression("Diameter", "Params.hole2_diameter")
hole2.DepthType = "ThroughAll"
hole2.HoleCutType = "Counterbore"
hole2.setExpression("HoleCutDiameter", "Params.hole2_cbore_diameter")
hole2.setExpression("HoleCutDepth", "Params.hole2_cbore_depth")
hole2.Reversed = True
doc.recompute()

chamfer = body.newObject("PartDesign::Chamfer", "Chamfer")
chamfer.Base = (hole2, edges_at(hole2, [
    (0, 6, 0),
    (435, 6, 0),
    (435, 6, 159.5),
    (0, 6, 159.5),
]))
chamfer.setExpression("Size", "Params.chamfer_size")

sketch15 = body.newObject("Sketcher::SketchObject", "Sketch014")
sketch15.AttachmentSupport = (doc.getObject("YZ_Plane"), [""])
sketch15.MapMode = "FlatFace"
sketch15.AttachmentOffset = App.Placement(App.Vector(0, 0, 155), App.Rotation())
sketch15.addGeometry([
    Part.LineSegment(App.Vector(2.7, 121.2, 0), App.Vector(12, 121.2, 0)),
    Part.LineSegment(App.Vector(12, 121.2, 0), App.Vector(12, 122.5, 0)),
    Part.LineSegment(App.Vector(12, 122.5, 0), App.Vector(3.5, 122.5, 0)),
    Part.LineSegment(App.Vector(3.5, 122.5, 0), App.Vector(2.7, 121.2, 0)),
], False)
sketch15.addGeometry(Part.LineSegment(App.Vector(12, 121.2, 0), App.Vector(2.7, 121.2, 0)), True)
sketch15.addConstraint([
    Sketcher.Constraint("Coincident", 0, 2, 1, 1),
    Sketcher.Constraint("Coincident", 1, 2, 2, 1),
    Sketcher.Constraint("Coincident", 2, 2, 3, 1),
    Sketcher.Constraint("Coincident", 3, 2, 0, 1),
    Sketcher.Constraint("Horizontal", 0),
    Sketcher.Constraint("Vertical", 1),
    Sketcher.Constraint("Horizontal", 2),
    Sketcher.Constraint("Horizontal", 4),
    Sketcher.Constraint("Coincident", 4, 1, 0, 2),
    Sketcher.Constraint("Equal", 0, 4),
    Sketcher.Constraint("Angle", 3, Q("-121 deg")),
    Sketcher.Constraint("DistanceX", 2, 2, 2, 1, 8.5),
    Sketcher.Constraint("DistanceX", -1, 1, 0, 2, 12.0),
    Sketcher.Constraint("DistanceY", 1, 1, 1, 2, 1.25),
    Sketcher.Constraint("DistanceY", -1, 1, 1, 2, 122.5),
])
sketch15.setExpression("Constraints[11]", "Params.sketch15_width")
sketch15.setExpression("Constraints[13]", "Params.sketch15_height")
groove12 = body.newObject("PartDesign::Groove", "Groove011")
groove12.Profile = sketch15
groove12.ReferenceAxis = (sketch15, ["Axis0"])
groove12.setExpression("Angle", "Params.groove12_angle")
doc.recompute()

linearpattern3 = body.newObject("PartDesign::LinearPattern", "LinearPattern002")
linearpattern3.Originals = [groove12]
linearpattern3.Direction = (doc.getObject("Z_Axis"), [""])
linearpattern3.Mode = "offset"
linearpattern3.setExpression("Offset", "Params.linearpattern3_pitch")
linearpattern3.Occurrences = 2
linearpattern3.Reversed = True
body.Tip = linearpattern3
doc.recompute()

linearpattern4 = body.newObject("PartDesign::LinearPattern", "LinearPattern003")
linearpattern4.Originals = [groove12]
linearpattern4.Direction = (doc.getObject("X_Axis"), [""])
linearpattern4.Mode = "offset"
linearpattern4.setExpression("Offset", "Params.linearpattern4_pitch")
linearpattern4.Occurrences = 3
body.Tip = linearpattern4

sketch16 = body.newObject("Sketcher::SketchObject", "Sketch015")
sketch16.AttachmentSupport = (doc.getObject("YZ_Plane"), [""])
sketch16.MapMode = "FlatFace"
sketch16.AttachmentOffset = App.Placement(App.Vector(0, 0, 272.5), App.Rotation())
sketch16.addGeometry([
    Part.LineSegment(App.Vector(2.7, 114.2, 0), App.Vector(12, 114.2, 0)),
    Part.LineSegment(App.Vector(12, 114.2, 0), App.Vector(12, 115.5, 0)),
    Part.LineSegment(App.Vector(12, 115.5, 0), App.Vector(3.5, 115.5, 0)),
    Part.LineSegment(App.Vector(3.5, 115.5, 0), App.Vector(2.7, 114.2, 0)),
], False)
sketch16.addGeometry(Part.LineSegment(App.Vector(12, 114.2, 0), App.Vector(2.7, 114.2, 0)), True)
sketch16.addConstraint([
    Sketcher.Constraint("Coincident", 0, 2, 1, 1),
    Sketcher.Constraint("Coincident", 1, 2, 2, 1),
    Sketcher.Constraint("Coincident", 2, 2, 3, 1),
    Sketcher.Constraint("Coincident", 3, 2, 0, 1),
    Sketcher.Constraint("Horizontal", 0),
    Sketcher.Constraint("Vertical", 1),
    Sketcher.Constraint("Horizontal", 2),
    Sketcher.Constraint("Horizontal", 4),
    Sketcher.Constraint("Coincident", 4, 1, 0, 2),
    Sketcher.Constraint("Equal", 0, 4),
    Sketcher.Constraint("Angle", 3, Q("-121 deg")),
    Sketcher.Constraint("DistanceX", 2, 2, 2, 1, 8.5),
    Sketcher.Constraint("DistanceX", -1, 1, 0, 2, 12.0),
    Sketcher.Constraint("DistanceY", 1, 1, 1, 2, 1.25),
    Sketcher.Constraint("DistanceY", -1, 1, 1, 2, 115.5),
])
sketch16.setExpression("Constraints[11]", "Params.sketch16_width")
sketch16.setExpression("Constraints[13]", "Params.sketch16_height")
groove13 = body.newObject("PartDesign::Groove", "Groove012")
groove13.Profile = sketch16
groove13.ReferenceAxis = (sketch16, ["Axis0"])
groove13.setExpression("Angle", "Params.groove13_angle")

sketch17 = body.newObject("Sketcher::SketchObject", "Sketch016")
sketch17.AttachmentSupport = (doc.getObject("YZ_Plane"), [""])
sketch17.MapMode = "FlatFace"
sketch17.AttachmentOffset = App.Placement(App.Vector(0, 0, 390), App.Rotation())
sketch17.addGeometry([
    Part.LineSegment(App.Vector(2.7, 114.2, 0), App.Vector(12, 114.2, 0)),
    Part.LineSegment(App.Vector(12, 114.2, 0), App.Vector(12, 115.5, 0)),
    Part.LineSegment(App.Vector(12, 115.5, 0), App.Vector(3.5, 115.5, 0)),
    Part.LineSegment(App.Vector(3.5, 115.5, 0), App.Vector(2.7, 114.2, 0)),
], False)
sketch17.addGeometry(Part.LineSegment(App.Vector(12, 114.2, 0), App.Vector(2.7, 114.2, 0)), True)
sketch17.addConstraint([
    Sketcher.Constraint("Coincident", 0, 2, 1, 1),
    Sketcher.Constraint("Coincident", 1, 2, 2, 1),
    Sketcher.Constraint("Coincident", 2, 2, 3, 1),
    Sketcher.Constraint("Coincident", 3, 2, 0, 1),
    Sketcher.Constraint("Horizontal", 0),
    Sketcher.Constraint("Vertical", 1),
    Sketcher.Constraint("Horizontal", 2),
    Sketcher.Constraint("Horizontal", 4),
    Sketcher.Constraint("Coincident", 4, 1, 0, 2),
    Sketcher.Constraint("Equal", 0, 4),
    Sketcher.Constraint("Angle", 3, Q("-121 deg")),
    Sketcher.Constraint("DistanceX", 2, 2, 2, 1, 8.5),
    Sketcher.Constraint("DistanceX", -1, 1, 0, 2, 12.0),
    Sketcher.Constraint("DistanceY", 1, 1, 1, 2, 1.25),
    Sketcher.Constraint("DistanceY", -1, 1, 1, 2, 115.5),
])
sketch17.setExpression("Constraints[11]", "Params.sketch17_width")
sketch17.setExpression("Constraints[13]", "Params.sketch17_height")
groove14 = body.newObject("PartDesign::Groove", "Groove013")
groove14.Profile = sketch17
groove14.ReferenceAxis = (sketch17, ["Axis0"])
groove14.setExpression("Angle", "Params.groove14_angle")

sketch18 = body.newObject("Sketcher::SketchObject", "Sketch017")
sketch18.AttachmentSupport = (doc.getObject("XZ_Plane"), [""])
sketch18.MapMode = "FlatFace"
sketch18.AttachmentOffset = App.Placement(App.Vector(0, 0, -12), App.Rotation())
sketch18.addGeometry([
    Part.Circle(App.Vector(113.5, 135.2, 0), App.Vector(0, 0, 1), 2.5),
    Part.Circle(App.Vector(138.5, 146.8, 0), App.Vector(0, 0, 1), 2.5),
    Part.Circle(App.Vector(388.5, 146.8, 0), App.Vector(0, 0, 1), 2.5),
    Part.Circle(App.Vector(388.5, 15.8, 0), App.Vector(0, 0, 1), 2.5),
    Part.Circle(App.Vector(113.5, 24.2, 0), App.Vector(0, 0, 1), 2.5),
    Part.Circle(App.Vector(138.5, 15.8, 0), App.Vector(0, 0, 1), 2.5),
], False)
sketch18.addConstraint([
    Sketcher.Constraint("Equal", 0, 1),
    Sketcher.Constraint("Equal", 1, 2),
    Sketcher.Constraint("Equal", 2, 3),
    Sketcher.Constraint("Equal", 3, 4),
    Sketcher.Constraint("Equal", 4, 5),
    Sketcher.Constraint("Horizontal", 1, 3, 2, 3),
    Sketcher.Constraint("Horizontal", 3, 3, 5, 3),
    Sketcher.Constraint("Vertical", 2, 3, 3, 3),
    Sketcher.Constraint("Vertical", 0, 3, 4, 3),
    Sketcher.Constraint("Vertical", 1, 3, 5, 3),
    Sketcher.Constraint("Diameter", 0, 5.0),
    Sketcher.Constraint("DistanceX", 0, 3, 1, 3, 25.0),
    Sketcher.Constraint("DistanceX", 1, 3, 2, 3, 250.0),
    Sketcher.Constraint("DistanceY", 3, 3, 2, 3, 131.0),
    Sketcher.Constraint("DistanceY", 4, 3, 0, 3, 111.0),
    Sketcher.Constraint("DistanceX", -1, 1, 0, 3, 113.5),
    Sketcher.Constraint("DistanceY", 0, 3, 1, 3, 11.5),
    Sketcher.Constraint("DistanceY", -1, 1, 0, 3, 135.25),
])
sketch18.setExpression("Constraints[10]", "Params.sketch18_diameter")
doc.recompute()
hole3 = body.newObject("PartDesign::Hole", "Hole002")
hole3.Profile = sketch18
hole3.ThreadType = "None"
hole3.setExpression("Diameter", "Params.hole3_diameter")
hole3.DepthType = "Dimension"
hole3.setExpression("Depth", "Params.hole3_depth")
hole3.DrillPoint = "Angled"
hole3.DrillPointAngle = 118
hole3.Reversed = True

doc.recompute()
